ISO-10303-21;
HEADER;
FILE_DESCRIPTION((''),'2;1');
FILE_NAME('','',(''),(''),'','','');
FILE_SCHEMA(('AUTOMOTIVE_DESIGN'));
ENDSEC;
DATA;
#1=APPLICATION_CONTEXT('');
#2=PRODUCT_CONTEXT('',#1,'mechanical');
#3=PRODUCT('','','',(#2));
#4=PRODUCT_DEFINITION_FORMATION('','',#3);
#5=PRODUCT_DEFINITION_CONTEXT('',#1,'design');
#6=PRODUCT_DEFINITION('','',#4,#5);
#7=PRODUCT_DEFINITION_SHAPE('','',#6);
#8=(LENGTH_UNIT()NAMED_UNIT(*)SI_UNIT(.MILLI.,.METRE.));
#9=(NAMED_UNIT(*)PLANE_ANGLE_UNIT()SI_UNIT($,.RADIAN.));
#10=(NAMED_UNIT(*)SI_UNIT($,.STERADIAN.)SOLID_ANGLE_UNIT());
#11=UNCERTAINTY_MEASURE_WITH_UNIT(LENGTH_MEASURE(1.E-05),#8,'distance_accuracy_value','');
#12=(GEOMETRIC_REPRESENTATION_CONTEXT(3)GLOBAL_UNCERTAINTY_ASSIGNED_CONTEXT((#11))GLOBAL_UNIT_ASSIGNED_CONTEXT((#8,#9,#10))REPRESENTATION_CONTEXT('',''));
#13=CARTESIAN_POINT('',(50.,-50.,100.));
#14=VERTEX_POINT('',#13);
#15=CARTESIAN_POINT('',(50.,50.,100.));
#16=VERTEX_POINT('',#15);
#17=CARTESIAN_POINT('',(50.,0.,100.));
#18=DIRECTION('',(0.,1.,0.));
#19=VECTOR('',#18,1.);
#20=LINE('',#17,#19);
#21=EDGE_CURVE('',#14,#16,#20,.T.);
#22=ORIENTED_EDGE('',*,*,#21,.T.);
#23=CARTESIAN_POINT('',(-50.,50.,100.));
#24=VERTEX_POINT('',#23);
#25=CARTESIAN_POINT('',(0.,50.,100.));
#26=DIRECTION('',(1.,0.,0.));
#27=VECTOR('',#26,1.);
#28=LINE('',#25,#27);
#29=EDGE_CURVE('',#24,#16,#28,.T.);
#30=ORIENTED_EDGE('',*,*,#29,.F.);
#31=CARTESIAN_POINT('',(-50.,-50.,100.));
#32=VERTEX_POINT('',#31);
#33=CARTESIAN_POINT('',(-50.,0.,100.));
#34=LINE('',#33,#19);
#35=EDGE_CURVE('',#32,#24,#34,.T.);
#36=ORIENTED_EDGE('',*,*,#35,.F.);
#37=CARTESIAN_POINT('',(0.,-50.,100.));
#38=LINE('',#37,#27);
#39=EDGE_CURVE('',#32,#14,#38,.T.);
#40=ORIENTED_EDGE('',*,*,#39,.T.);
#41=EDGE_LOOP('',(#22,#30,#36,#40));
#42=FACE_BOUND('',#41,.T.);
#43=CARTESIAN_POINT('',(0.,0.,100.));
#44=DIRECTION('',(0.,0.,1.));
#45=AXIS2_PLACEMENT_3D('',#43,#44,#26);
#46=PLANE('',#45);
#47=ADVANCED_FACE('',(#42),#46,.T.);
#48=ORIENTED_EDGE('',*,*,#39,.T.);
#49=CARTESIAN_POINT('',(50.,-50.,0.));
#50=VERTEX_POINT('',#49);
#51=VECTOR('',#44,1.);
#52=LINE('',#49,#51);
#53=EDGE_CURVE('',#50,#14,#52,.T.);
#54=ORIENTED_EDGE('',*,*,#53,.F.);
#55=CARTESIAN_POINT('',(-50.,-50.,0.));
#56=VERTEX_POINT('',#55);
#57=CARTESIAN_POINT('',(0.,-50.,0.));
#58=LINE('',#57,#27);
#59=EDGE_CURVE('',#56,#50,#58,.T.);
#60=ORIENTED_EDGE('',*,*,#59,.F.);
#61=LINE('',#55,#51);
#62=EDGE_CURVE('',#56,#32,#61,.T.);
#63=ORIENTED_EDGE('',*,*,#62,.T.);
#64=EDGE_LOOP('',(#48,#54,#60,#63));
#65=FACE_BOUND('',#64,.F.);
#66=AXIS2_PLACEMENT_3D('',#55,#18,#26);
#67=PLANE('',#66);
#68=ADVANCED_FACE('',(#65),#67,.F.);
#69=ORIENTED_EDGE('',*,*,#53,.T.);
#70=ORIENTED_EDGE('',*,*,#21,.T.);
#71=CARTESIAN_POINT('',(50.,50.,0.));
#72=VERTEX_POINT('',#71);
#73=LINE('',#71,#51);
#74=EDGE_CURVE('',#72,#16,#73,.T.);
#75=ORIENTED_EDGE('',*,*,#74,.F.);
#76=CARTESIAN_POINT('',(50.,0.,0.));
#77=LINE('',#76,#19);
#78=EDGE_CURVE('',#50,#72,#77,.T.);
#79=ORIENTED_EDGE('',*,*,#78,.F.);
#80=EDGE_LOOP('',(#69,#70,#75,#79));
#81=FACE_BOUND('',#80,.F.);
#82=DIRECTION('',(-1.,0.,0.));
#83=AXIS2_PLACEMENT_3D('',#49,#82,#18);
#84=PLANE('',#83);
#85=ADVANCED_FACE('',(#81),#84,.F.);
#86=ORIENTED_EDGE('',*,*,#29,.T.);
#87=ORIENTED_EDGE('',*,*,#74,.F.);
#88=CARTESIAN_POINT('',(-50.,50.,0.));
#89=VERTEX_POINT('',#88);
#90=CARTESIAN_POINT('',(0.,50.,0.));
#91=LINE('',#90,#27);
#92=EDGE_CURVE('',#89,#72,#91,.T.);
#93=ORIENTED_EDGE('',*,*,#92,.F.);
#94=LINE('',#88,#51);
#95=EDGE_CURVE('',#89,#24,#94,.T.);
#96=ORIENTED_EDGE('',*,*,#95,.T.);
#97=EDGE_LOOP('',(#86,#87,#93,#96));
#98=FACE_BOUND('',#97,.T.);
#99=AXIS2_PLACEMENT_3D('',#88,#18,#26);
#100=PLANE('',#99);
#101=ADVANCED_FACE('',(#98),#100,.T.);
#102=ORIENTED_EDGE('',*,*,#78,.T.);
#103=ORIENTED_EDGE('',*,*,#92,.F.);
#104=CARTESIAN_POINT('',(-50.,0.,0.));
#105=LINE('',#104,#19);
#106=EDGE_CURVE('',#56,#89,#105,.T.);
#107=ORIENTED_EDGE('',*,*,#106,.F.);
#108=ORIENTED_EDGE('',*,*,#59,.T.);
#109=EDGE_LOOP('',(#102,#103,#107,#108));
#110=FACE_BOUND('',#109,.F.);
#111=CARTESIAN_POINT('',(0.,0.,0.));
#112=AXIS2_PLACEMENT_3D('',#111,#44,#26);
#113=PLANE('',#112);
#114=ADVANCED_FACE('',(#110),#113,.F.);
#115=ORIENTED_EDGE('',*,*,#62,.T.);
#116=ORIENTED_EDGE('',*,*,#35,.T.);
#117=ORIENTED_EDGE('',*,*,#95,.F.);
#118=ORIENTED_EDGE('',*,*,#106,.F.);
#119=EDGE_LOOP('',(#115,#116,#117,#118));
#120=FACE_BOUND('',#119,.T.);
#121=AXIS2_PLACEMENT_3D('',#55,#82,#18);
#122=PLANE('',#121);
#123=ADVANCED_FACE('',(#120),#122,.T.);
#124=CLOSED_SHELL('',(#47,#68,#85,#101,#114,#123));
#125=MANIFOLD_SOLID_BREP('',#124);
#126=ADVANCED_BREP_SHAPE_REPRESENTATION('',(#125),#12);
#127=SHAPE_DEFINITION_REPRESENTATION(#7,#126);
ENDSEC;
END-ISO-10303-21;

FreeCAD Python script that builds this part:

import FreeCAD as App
import Part
import Sketcher


def add_polygon(sketch, points):
    """Adds a closed chain of lines whose ends are joined by coincident constraints."""
    first, n = sketch.GeometryCount, len(points)
    for a, b in zip(points, points[1:] + points[:1]):
        sketch.addGeometry(Part.LineSegment(App.Vector(*a, 0), App.Vector(*b, 0)), False)
    for i in range(n):
        sketch.addConstraint(Sketcher.Constraint("Coincident", first + i, 2, first + (i + 1) % n, 1))

doc = App.newDocument("Part")
body = doc.addObject("PartDesign::Body", "Body")

# Sketch on XY plane
sketch1 = doc.addObject("Sketcher::SketchObject", "Sketch")
body.addObject(sketch1)
sketch1.AttachmentSupport = (doc.XY_Plane, [""])
sketch1.MapMode = "FlatFace"
add_polygon(sketch1, [(-50, 50), (-50, -50), (50, -50), (50, 50)])  # lines 0-3
sketch1.addConstraint([
    Sketcher.Constraint("Vertical", 0),
    Sketcher.Constraint("Horizontal", 1),
    Sketcher.Constraint("Vertical", 2),
    Sketcher.Constraint("Horizontal", 3),
    Sketcher.Constraint("Symmetric", 0, 2, 2, 2, -1, 1),
    Sketcher.Constraint("Equal", 3, 0),
    Sketcher.Constraint("DistanceX", 1, 1, 1, 2, 100.0),
])
pad1 = doc.addObject("PartDesign::Pad", "Pad")
body.addObject(pad1)
pad1.Profile = sketch1
pad1.Length = 100

doc.recompute()
